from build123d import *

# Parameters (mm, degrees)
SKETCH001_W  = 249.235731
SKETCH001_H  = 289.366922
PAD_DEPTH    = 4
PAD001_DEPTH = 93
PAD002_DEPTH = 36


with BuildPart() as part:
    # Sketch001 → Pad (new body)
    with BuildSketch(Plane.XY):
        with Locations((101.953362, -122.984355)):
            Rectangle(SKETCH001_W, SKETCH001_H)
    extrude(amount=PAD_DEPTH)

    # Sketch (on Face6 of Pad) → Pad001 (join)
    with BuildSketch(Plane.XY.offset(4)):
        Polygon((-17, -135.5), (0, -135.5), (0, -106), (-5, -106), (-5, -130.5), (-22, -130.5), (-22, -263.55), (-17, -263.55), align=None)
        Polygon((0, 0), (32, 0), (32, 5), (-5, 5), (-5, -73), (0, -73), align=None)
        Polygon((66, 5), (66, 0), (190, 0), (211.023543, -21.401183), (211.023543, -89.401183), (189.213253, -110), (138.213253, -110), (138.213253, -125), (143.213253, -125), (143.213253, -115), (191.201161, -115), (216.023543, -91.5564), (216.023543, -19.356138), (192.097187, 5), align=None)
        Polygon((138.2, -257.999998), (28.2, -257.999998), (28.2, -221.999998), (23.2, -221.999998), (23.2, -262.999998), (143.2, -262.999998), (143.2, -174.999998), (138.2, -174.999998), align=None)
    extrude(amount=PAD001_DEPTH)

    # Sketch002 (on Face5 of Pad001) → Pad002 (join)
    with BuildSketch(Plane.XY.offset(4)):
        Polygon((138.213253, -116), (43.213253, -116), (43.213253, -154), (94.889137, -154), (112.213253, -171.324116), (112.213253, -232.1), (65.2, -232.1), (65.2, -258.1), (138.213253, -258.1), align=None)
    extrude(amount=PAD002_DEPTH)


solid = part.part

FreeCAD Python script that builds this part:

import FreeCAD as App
import Part
import Sketcher
Q = App.Units.Quantity

doc = App.newDocument("Part")
body = doc.addObject("PartDesign::Body", "Body")

# Sketch on XY plane
sketch1 = body.newObject("Sketcher::SketchObject", "Sketch")
sketch1.AttachmentSupport = (doc.getObject("XY_Plane"), [""])
sketch1.MapMode = "FlatFace"
sketch1.addGeometry(Part.LineSegment(App.Vector(-23, 22, 0), App.Vector(-23, -268, 0)), False)
sketch1.addGeometry(Part.LineSegment(App.Vector(-23, -268, 0), App.Vector(227, -268, 0)), False)
sketch1.addGeometry(Part.LineSegment(App.Vector(227, -268, 0), App.Vector(227, 22, 0)), False)
sketch1.addGeometry(Part.LineSegment(App.Vector(227, 22, 0), App.Vector(-23, 22, 0)), False)
sketch1.addConstraint(Sketcher.Constraint("Coincident", 0, 2, 1, 1))
sketch1.addConstraint(Sketcher.Constraint("Coincident", 1, 2, 2, 1))
sketch1.addConstraint(Sketcher.Constraint("Coincident", 2, 2, 3, 1))
sketch1.addConstraint(Sketcher.Constraint("Coincident", 3, 2, 0, 1))
sketch1.addConstraint(Sketcher.Constraint("Vertical", 0))
sketch1.addConstraint(Sketcher.Constraint("Horizontal", 1))
sketch1.addConstraint(Sketcher.Constraint("Vertical", 2))
sketch1.addConstraint(Sketcher.Constraint("Horizontal", 3))
sketch1.addConstraint(Sketcher.Constraint("DistanceX", 1, 1, 1, 2, Q("249.235731 mm")))
sketch1.addConstraint(Sketcher.Constraint("DistanceY", 0, 2, 0, 1, Q("289.366922 mm")))
sketch1.addConstraint(Sketcher.Constraint("DistanceX", 0, 2, -1, 1, Q("22.664503 mm")))
sketch1.addConstraint(Sketcher.Constraint("DistanceY", 0, 2, -1, 1, Q("267.667816 mm")))
pad1 = body.newObject("PartDesign::Pad", "Pad")
pad1.Profile = sketch1
pad1.Length = 4

# Sketch on XY plane
sketch2 = body.newObject("Sketcher::SketchObject", "Sketch001")
sketch2.AttachmentSupport = (doc.getObject("XY_Plane"), [""])
sketch2.MapMode = "FlatFace"
sketch2.AttachmentOffset = App.Placement(App.Vector(0, 0, 4), App.Rotation())
sketch2.addGeometry(Part.LineSegment(App.Vector(-17, -136, 0), App.Vector(0, -136, 0)), False)
sketch2.addGeometry(Part.LineSegment(App.Vector(0, -136, 0), App.Vector(0, -106, 0)), False)
sketch2.addGeometry(Part.LineSegment(App.Vector(0, -106, 0), App.Vector(-5, -106, 0)), False)
sketch2.addGeometry(Part.LineSegment(App.Vector(-5, -106, 0), App.Vector(-5, -130, 0)), False)
sketch2.addGeometry(Part.LineSegment(App.Vector(-5, -130, 0), App.Vector(-22, -130, 0)), False)
sketch2.addGeometry(Part.LineSegment(App.Vector(-22, -130, 0), App.Vector(-22, -264, 0)), False)
sketch2.addGeometry(Part.LineSegment(App.Vector(-22, -264, 0), App.Vector(-17, -264, 0)), False)
sketch2.addGeometry(Part.LineSegment(App.Vector(-17, -264, 0), App.Vector(-17, -136, 0)), False)
sketch2.addGeometry(Part.LineSegment(App.Vector(0, 0, 0), App.Vector(32, 0, 0)), False)
sketch2.addGeometry(Part.LineSegment(App.Vector(32, 0, 0), App.Vector(32, 5, 0)), False)
sketch2.addGeometry(Part.LineSegment(App.Vector(32, 5, 0), App.Vector(-5, 5, 0)), False)
sketch2.addGeometry(Part.LineSegment(App.Vector(-5, 5, 0), App.Vector(-5, -73, 0)), False)
sketch2.addGeometry(Part.LineSegment(App.Vector(-5, -73, 0), App.Vector(0, -73, 0)), False)
sketch2.addGeometry(Part.LineSegment(App.Vector(0, -73, 0), App.Vector(0, 0, 0)), False)
sketch2.addGeometry(Part.LineSegment(App.Vector(66, 5, 0), App.Vector(66, 0, 0)), False)
sketch2.addGeometry(Part.LineSegment(App.Vector(66, 0, 0), App.Vector(190, 0, 0)), False)
sketch2.addGeometry(Part.LineSegment(App.Vector(190, 0, 0), App.Vector(211, -21, 0)), False)
sketch2.addGeometry(Part.LineSegment(App.Vector(211, -21, 0), App.Vector(211, -89, 0)), False)
sketch2.addGeometry(Part.LineSegment(App.Vector(211, -89, 0), App.Vector(189, -110, 0)), False)
sketch2.addGeometry(Part.LineSegment(App.Vector(189, -110, 0), App.Vector(138, -110, 0)), False)
sketch2.addGeometry(Part.LineSegment(App.Vector(138, -110, 0), App.Vector(138, -125, 0)), False)
sketch2.addGeometry(Part.LineSegment(App.Vector(138, -125, 0), App.Vector(143, -125, 0)), False)
sketch2.addGeometry(Part.LineSegment(App.Vector(143, -125, 0), App.Vector(143, -115, 0)), False)
sketch2.addGeometry(Part.LineSegment(App.Vector(143, -115, 0), App.Vector(191, -115, 0)), False)
sketch2.addGeometry(Part.LineSegment(App.Vector(191, -115, 0), App.Vector(216, -92, 0)), False)
sketch2.addGeometry(Part.LineSegment(App.Vector(216, -92, 0), App.Vector(216, -19, 0)), False)
sketch2.addGeometry(Part.LineSegment(App.Vector(216, -19, 0), App.Vector(192, 5, 0)), False)
sketch2.addGeometry(Part.LineSegment(App.Vector(192, 5, 0), App.Vector(66, 5, 0)), False)
sketch2.addGeometry(Part.LineSegment(App.Vector(138, -258, 0), App.Vector(28, -258, 0)), False)
sketch2.addGeometry(Part.LineSegment(App.Vector(28, -258, 0), App.Vector(28, -222, 0)), False)
sketch2.addGeometry(Part.LineSegment(App.Vector(28, -222, 0), App.Vector(23, -222, 0)), False)
sketch2.addGeometry(Part.LineSegment(App.Vector(23, -222, 0), App.Vector(23, -263, 0)), False)
sketch2.addGeometry(Part.LineSegment(App.Vector(23, -263, 0), App.Vector(143, -263, 0)), False)
sketch2.addGeometry(Part.LineSegment(App.Vector(143, -263, 0), App.Vector(143, -175, 0)), False)
sketch2.addGeometry(Part.LineSegment(App.Vector(143, -175, 0), App.Vector(138, -175, 0)), False)
sketch2.addGeometry(Part.LineSegment(App.Vector(138, -175, 0), App.Vector(138, -258, 0)), False)
sketch2.addConstraint(Sketcher.Constraint("Coincident", 0, 2, 1, 1))
sketch2.addConstraint(Sketcher.Constraint("Coincident", 1, 2, 2, 1))
sketch2.addConstraint(Sketcher.Constraint("Coincident", 2, 2, 3, 1))
sketch2.addConstraint(Sketcher.Constraint("Coincident", 3, 2, 4, 1))
sketch2.addConstraint(Sketcher.Constraint("Coincident", 4, 2, 5, 1))
sketch2.addConstraint(Sketcher.Constraint("Coincident", 5, 2, 6, 1))
sketch2.addConstraint(Sketcher.Constraint("Coincident", 6, 2, 7, 1))
sketch2.addConstraint(Sketcher.Constraint("Coincident", 7, 2, 0, 1))
sketch2.addConstraint(Sketcher.Constraint("Coincident", 8, 2, 9, 1))
sketch2.addConstraint(Sketcher.Constraint("Coincident", 9, 2, 10, 1))
sketch2.addConstraint(Sketcher.Constraint("Coincident", 10, 2, 11, 1))
sketch2.addConstraint(Sketcher.Constraint("Coincident", 11, 2, 12, 1))
sketch2.addConstraint(Sketcher.Constraint("Coincident", 12, 2, 13, 1))
sketch2.addConstraint(Sketcher.Constraint("Coincident", 13, 2, 8, 1))
sketch2.addConstraint(Sketcher.Constraint("Coincident", 14, 2, 15, 1))
sketch2.addConstraint(Sketcher.Constraint("Coincident", 15, 2, 16, 1))
sketch2.addConstraint(Sketcher.Constraint("Coincident", 16, 2, 17, 1))
sketch2.addConstraint(Sketcher.Constraint("Coincident", 17, 2, 18, 1))
sketch2.addConstraint(Sketcher.Constraint("Coincident", 18, 2, 19, 1))
sketch2.addConstraint(Sketcher.Constraint("Coincident", 19, 2, 20, 1))
sketch2.addConstraint(Sketcher.Constraint("Coincident", 20, 2, 21, 1))
sketch2.addConstraint(Sketcher.Constraint("Coincident", 21, 2, 22, 1))
sketch2.addConstraint(Sketcher.Constraint("Coincident", 22, 2, 23, 1))
sketch2.addConstraint(Sketcher.Constraint("Coincident", 23, 2, 24, 1))
sketch2.addConstraint(Sketcher.Constraint("Coincident", 24, 2, 25, 1))
sketch2.addConstraint(Sketcher.Constraint("Coincident", 25, 2, 26, 1))
sketch2.addConstraint(Sketcher.Constraint("Coincident", 26, 2, 27, 1))
sketch2.addConstraint(Sketcher.Constraint("Coincident", 27, 2, 14, 1))
sketch2.addConstraint(Sketcher.Constraint("Coincident", 28, 2, 29, 1))
sketch2.addConstraint(Sketcher.Constraint("Coincident", 29, 2, 30, 1))
sketch2.addConstraint(Sketcher.Constraint("Coincident", 30, 2, 31, 1))
sketch2.addConstraint(Sketcher.Constraint("Coincident", 31, 2, 32, 1))
sketch2.addConstraint(Sketcher.Constraint("Coincident", 32, 2, 33, 1))
sketch2.addConstraint(Sketcher.Constraint("Coincident", 33, 2, 34, 1))
sketch2.addConstraint(Sketcher.Constraint("Coincident", 34, 2, 35, 1))
sketch2.addConstraint(Sketcher.Constraint("Coincident", 35, 2, 28, 1))
sketch2.addConstraint(Sketcher.Constraint("Horizontal", 0))
sketch2.addConstraint(Sketcher.Constraint("Vertical", 1))
sketch2.addConstraint(Sketcher.Constraint("Horizontal", 2))
sketch2.addConstraint(Sketcher.Constraint("Vertical", 3))
sketch2.addConstraint(Sketcher.Constraint("Horizontal", 4))
sketch2.addConstraint(Sketcher.Constraint("Vertical", 5))
sketch2.addConstraint(Sketcher.Constraint("Horizontal", 6))
sketch2.addConstraint(Sketcher.Constraint("Vertical", 7))
sketch2.addConstraint(Sketcher.Constraint("Horizontal", 8))
sketch2.addConstraint(Sketcher.Constraint("Vertical", 9))
sketch2.addConstraint(Sketcher.Constraint("Horizontal", 10))
sketch2.addConstraint(Sketcher.Constraint("Vertical", 11))
sketch2.addConstraint(Sketcher.Constraint("Horizontal", 12))
sketch2.addConstraint(Sketcher.Constraint("Vertical", 13))
sketch2.addConstraint(Sketcher.Constraint("Vertical", 14))
sketch2.addConstraint(Sketcher.Constraint("Horizontal", 15))
sketch2.addConstraint(Sketcher.Constraint("Vertical", 17))
sketch2.addConstraint(Sketcher.Constraint("Horizontal", 19))
sketch2.addConstraint(Sketcher.Constraint("Vertical", 20))
sketch2.addConstraint(Sketcher.Constraint("Horizontal", 21))
sketch2.addConstraint(Sketcher.Constraint("Vertical", 22))
sketch2.addConstraint(Sketcher.Constraint("Horizontal", 23))
sketch2.addConstraint(Sketcher.Constraint("Vertical", 25))
sketch2.addConstraint(Sketcher.Constraint("Horizontal", 27))
sketch2.addConstraint(Sketcher.Constraint("Horizontal", 28))
sketch2.addConstraint(Sketcher.Constraint("Vertical", 29))
sketch2.addConstraint(Sketcher.Constraint("Horizontal", 30))
sketch2.addConstraint(Sketcher.Constraint("Vertical", 31))
sketch2.addConstraint(Sketcher.Constraint("Horizontal", 32))
sketch2.addConstraint(Sketcher.Constraint("Vertical", 33))
sketch2.addConstraint(Sketcher.Constraint("Horizontal", 34))
sketch2.addConstraint(Sketcher.Constraint("Vertical", 35))
sketch2.addConstraint(Sketcher.Constraint("Coincident", 13, 2, -1, 1))
sketch2.addConstraint(Sketcher.Constraint("PointOnObject", 0, 2, -2))
sketch2.addConstraint(Sketcher.Constraint("PointOnObject", 14, 2, -1))
sketch2.addConstraint(Sketcher.Constraint("Parallel", 18, 24))
sketch2.addConstraint(Sketcher.Constraint("Parallel", 16, 26))
sketch2.addConstraint(Sketcher.Constraint("Horizontal", 10, 2, 26, 2))
sketch2.addConstraint(Sketcher.Constraint("Vertical", 3, 2, 10, 2))
sketch2.addConstraint(Sketcher.Constraint("Equal", 0, 4))
sketch2.addConstraint(Sketcher.Constraint("Equal", 12, 21))
sketch2.addConstraint(Sketcher.Constraint("Equal", 21, 30))
sketch2.addConstraint(Sketcher.Constraint("Equal", 30, 34))
sketch2.addConstraint(Sketcher.Constraint("Equal", 34, 9))
sketch2.addConstraint(Sketcher.Constraint("Equal", 16, 18))
sketch2.addConstraint(Sketcher.Constraint("DistanceX", 0, 1, 0, 2, Q("17 mm")))
sketch2.addConstraint(Sketcher.Constraint("DistanceX", 2, 2, 2, 1, Q("5 mm")))
sketch2.addConstraint(Sketcher.Constraint("DistanceX", 8, 1, 8, 2, Q("32 mm")))
sketch2.addConstraint(Sketcher.Constraint("DistanceX", 15, 1, 15, 2, Q("124 mm")))
sketch2.addConstraint(Sketcher.Constraint("DistanceX", 19, 2, 19, 1, Q("51 mm")))
sketch2.addConstraint(Sketcher.Constraint("DistanceX", 28, 2, 28, 1, Q("110 mm")))
sketch2.addConstraint(Sketcher.Constraint("DistanceY", 11, 2, 11, 1, Q("78 mm")))
sketch2.addConstraint(Sketcher.Constraint("DistanceY", 17, 2, 17, 1, Q("68 mm")))
sketch2.addConstraint(Sketcher.Constraint("DistanceY", 20, 2, 20, 1, Q("15 mm")))
sketch2.addConstraint(Sketcher.Constraint("DistanceY", 22, 1, 22, 2, Q("10 mm")))
sketch2.addConstraint(Sketcher.Constraint("DistanceY", 29, 1, 29, 2, Q("36 mm")))
sketch2.addConstraint(Sketcher.Constraint("DistanceY", 31, 2, 31, 1, Q("41 mm")))
sketch2.addConstraint(Sketcher.Constraint("DistanceY", 33, 1, 33, 2, Q("88 mm")))
sketch2.addConstraint(Sketcher.Constraint("Distance", 16, Q("30 mm")))
sketch2.addConstraint(Sketcher.Constraint("DistanceY", 1, 1, 1, 2, Q("29.5 mm")))
sketch2.addConstraint(Sketcher.Constraint("DistanceY", 3, 2, 3, 1, Q("24.5 mm")))
sketch2.addConstraint(Sketcher.Constraint("DistanceY", 1, 2, -1, 1, Q("106 mm")))
sketch2.addConstraint(Sketcher.Constraint("DistanceX", -1, 1, 14, 2, Q("66 mm")))
sketch2.addConstraint(Sketcher.Constraint("DistanceY", 18, 2, -1, 1, Q("110 mm")))
sketch2.addConstraint(Sketcher.Constraint("DistanceY", 28, 2, -1, 1, Q("257.999998 mm")))
sketch2.addConstraint(Sketcher.Constraint("DistanceX", 17, 2, 24, 2, Q("5 mm")))
sketch2.addConstraint(Sketcher.Constraint("DistanceY", 5, 2, 5, 1, Q("133.05 mm")))
sketch2.addConstraint(Sketcher.Constraint("DistanceX", -1, 1, 28, 2, Q("28.2 mm")))
sketch2.addConstraint(Sketcher.Constraint("Angle", 16, Q("-45.51 deg")))
sketch2.addConstraint(Sketcher.Constraint("DistanceX", 23, 1, 23, 2, Q("47.987908 mm")))
sketch2.addConstraint(Sketcher.Constraint("DistanceY", 25, 1, 25, 2, Q("72.200262 mm")))
pad2 = body.newObject("PartDesign::Pad", "Pad001")
pad2.Profile = sketch2
pad2.Length = 93

# Sketch on XY plane
sketch3 = body.newObject("Sketcher::SketchObject", "Sketch002")
sketch3.AttachmentSupport = (doc.getObject("XY_Plane"), [""])
sketch3.MapMode = "FlatFace"
sketch3.AttachmentOffset = App.Placement(App.Vector(0, 0, 4), App.Rotation())
sketch3.addGeometry(Part.LineSegment(App.Vector(138, -116, 0), App.Vector(43, -116, 0)), False)
sketch3.addGeometry(Part.LineSegment(App.Vector(43, -116, 0), App.Vector(43, -154, 0)), False)
sketch3.addGeometry(Part.LineSegment(App.Vector(43, -154, 0), App.Vector(95, -154, 0)), False)
sketch3.addGeometry(Part.LineSegment(App.Vector(95, -154, 0), App.Vector(112, -171, 0)), False)
sketch3.addGeometry(Part.LineSegment(App.Vector(112, -171, 0), App.Vector(112, -232, 0)), False)
sketch3.addGeometry(Part.LineSegment(App.Vector(112, -232, 0), App.Vector(65, -232, 0)), False)
sketch3.addGeometry(Part.LineSegment(App.Vector(65, -232, 0), App.Vector(65, -258, 0)), False)
sketch3.addGeometry(Part.LineSegment(App.Vector(65, -258, 0), App.Vector(138, -258, 0)), False)
sketch3.addGeometry(Part.LineSegment(App.Vector(138, -258, 0), App.Vector(138, -116, 0)), False)
sketch3.addConstraint(Sketcher.Constraint("Coincident", 0, 2, 1, 1))
sketch3.addConstraint(Sketcher.Constraint("Coincident", 1, 2, 2, 1))
sketch3.addConstraint(Sketcher.Constraint("Coincident", 2, 2, 3, 1))
sketch3.addConstraint(Sketcher.Constraint("Coincident", 3, 2, 4, 1))
sketch3.addConstraint(Sketcher.Constraint("Coincident", 4, 2, 5, 1))
sketch3.addConstraint(Sketcher.Constraint("Coincident", 5, 2, 6, 1))
sketch3.addConstraint(Sketcher.Constraint("Coincident", 6, 2, 7, 1))
sketch3.addConstraint(Sketcher.Constraint("Coincident", 7, 2, 8, 1))
sketch3.addConstraint(Sketcher.Constraint("Coincident", 8, 2, 0, 1))
sketch3.addConstraint(Sketcher.Constraint("Horizontal", 0))
sketch3.addConstraint(Sketcher.Constraint("Vertical", 1))
sketch3.addConstraint(Sketcher.Constraint("Horizontal", 2))
sketch3.addConstraint(Sketcher.Constraint("Vertical", 4))
sketch3.addConstraint(Sketcher.Constraint("Horizontal", 5))
sketch3.addConstraint(Sketcher.Constraint("Vertical", 6))
sketch3.addConstraint(Sketcher.Constraint("Horizontal", 7))
sketch3.addConstraint(Sketcher.Constraint("Vertical", 8))
sketch3.addConstraint(Sketcher.Constraint("DistanceX", 0, 2, 0, 1, Q("95 mm")))
sketch3.addConstraint(Sketcher.Constraint("DistanceY", 1, 2, 1, 1, Q("38 mm")))
sketch3.addConstraint(Sketcher.Constraint("DistanceY", 6, 2, 6, 1, Q("26 mm")))
sketch3.addConstraint(Sketcher.Constraint("Angle", 3, Q("-45 deg")))
sketch3.addConstraint(Sketcher.Constraint("DistanceY", 8, 1, 8, 2, Q("142.1 mm")))
sketch3.addConstraint(Sketcher.Constraint("DistanceY", 0, 2, -1, 1, Q("116 mm")))
sketch3.addConstraint(Sketcher.Constraint("DistanceX", 1, 2, 3, 2, Q("69 mm")))
sketch3.addConstraint(Sketcher.Constraint("Distance", 3, Q("24.5 mm")))
sketch3.addConstraint(Sketcher.Constraint("DistanceX", -1, 1, 5, 2, Q("65.2 mm")))
sketch3.addConstraint(Sketcher.Constraint("DistanceX", 5, 2, 5, 1, Q("47.013253 mm")))
pad3 = body.newObject("PartDesign::Pad", "Pad002")
pad3.Profile = sketch3
pad3.Length = 36

doc.recompute()
